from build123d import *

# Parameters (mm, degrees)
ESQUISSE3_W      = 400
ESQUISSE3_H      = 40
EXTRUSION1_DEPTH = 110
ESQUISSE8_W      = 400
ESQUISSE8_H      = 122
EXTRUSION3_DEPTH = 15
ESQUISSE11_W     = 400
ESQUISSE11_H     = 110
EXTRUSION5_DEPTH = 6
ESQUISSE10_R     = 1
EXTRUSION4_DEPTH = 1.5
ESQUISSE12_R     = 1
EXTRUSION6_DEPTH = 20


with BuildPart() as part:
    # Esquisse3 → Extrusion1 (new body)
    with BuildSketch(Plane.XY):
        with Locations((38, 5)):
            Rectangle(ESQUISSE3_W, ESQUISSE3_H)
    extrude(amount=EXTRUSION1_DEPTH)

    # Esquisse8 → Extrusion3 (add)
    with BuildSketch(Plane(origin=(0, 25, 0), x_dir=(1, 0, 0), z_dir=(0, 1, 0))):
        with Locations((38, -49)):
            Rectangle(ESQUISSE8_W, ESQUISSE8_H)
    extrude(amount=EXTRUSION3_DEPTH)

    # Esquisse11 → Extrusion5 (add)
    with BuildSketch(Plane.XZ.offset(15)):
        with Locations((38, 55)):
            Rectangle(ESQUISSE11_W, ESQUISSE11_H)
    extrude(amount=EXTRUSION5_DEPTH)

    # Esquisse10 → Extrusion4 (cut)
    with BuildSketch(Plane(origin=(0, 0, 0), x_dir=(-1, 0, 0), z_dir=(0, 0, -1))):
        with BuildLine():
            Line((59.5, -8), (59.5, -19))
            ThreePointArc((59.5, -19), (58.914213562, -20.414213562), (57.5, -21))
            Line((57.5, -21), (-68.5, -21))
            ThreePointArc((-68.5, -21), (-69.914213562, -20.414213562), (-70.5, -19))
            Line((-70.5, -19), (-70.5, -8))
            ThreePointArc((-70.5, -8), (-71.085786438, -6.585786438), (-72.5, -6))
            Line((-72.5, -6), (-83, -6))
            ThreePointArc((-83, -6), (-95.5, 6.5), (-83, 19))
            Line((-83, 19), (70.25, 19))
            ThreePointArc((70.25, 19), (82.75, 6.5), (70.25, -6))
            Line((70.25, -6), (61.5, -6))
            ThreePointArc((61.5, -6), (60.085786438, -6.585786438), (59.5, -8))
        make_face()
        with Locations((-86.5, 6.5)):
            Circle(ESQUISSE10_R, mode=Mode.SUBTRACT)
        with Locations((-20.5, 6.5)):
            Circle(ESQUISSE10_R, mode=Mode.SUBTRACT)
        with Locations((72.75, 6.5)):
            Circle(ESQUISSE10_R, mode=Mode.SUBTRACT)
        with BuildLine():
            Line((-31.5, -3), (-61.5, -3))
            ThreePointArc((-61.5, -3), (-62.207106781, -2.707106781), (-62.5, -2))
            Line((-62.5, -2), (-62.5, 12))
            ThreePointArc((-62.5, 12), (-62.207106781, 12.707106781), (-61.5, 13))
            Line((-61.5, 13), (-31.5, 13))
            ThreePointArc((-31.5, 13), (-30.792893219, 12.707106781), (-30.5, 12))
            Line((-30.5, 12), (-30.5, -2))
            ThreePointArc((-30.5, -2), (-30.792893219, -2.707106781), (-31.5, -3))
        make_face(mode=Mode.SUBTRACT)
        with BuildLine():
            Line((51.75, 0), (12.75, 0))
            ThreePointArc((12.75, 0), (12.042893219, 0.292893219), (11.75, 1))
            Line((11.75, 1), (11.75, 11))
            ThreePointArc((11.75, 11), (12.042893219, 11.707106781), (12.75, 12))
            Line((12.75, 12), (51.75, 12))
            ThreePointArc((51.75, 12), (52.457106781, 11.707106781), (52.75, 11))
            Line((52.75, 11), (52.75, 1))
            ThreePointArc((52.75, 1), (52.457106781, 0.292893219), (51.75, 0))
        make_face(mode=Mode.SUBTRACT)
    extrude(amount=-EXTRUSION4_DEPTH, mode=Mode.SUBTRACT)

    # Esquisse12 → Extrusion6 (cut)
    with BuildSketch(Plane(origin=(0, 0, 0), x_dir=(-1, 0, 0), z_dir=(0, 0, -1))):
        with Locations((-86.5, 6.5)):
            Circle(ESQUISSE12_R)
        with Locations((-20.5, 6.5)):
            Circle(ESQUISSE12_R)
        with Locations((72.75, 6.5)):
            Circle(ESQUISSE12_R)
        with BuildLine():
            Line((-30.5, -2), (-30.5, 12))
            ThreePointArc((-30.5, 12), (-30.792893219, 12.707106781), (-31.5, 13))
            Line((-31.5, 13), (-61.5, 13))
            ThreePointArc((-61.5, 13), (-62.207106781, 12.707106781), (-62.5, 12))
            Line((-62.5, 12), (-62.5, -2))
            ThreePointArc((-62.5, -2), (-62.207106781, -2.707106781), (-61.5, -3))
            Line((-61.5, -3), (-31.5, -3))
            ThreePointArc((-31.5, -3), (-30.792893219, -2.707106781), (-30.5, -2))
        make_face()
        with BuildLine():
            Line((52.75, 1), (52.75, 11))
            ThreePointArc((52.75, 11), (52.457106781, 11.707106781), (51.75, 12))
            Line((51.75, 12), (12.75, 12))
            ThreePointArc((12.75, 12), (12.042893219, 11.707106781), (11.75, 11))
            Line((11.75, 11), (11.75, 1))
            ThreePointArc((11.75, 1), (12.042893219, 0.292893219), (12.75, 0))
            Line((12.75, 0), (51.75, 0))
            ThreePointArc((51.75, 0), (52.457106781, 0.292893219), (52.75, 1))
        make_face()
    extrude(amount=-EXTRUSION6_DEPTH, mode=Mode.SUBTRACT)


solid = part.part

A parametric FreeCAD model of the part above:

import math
import FreeCAD as App
import Part
import Sketcher
from FreeCAD import Vector

doc = App.newDocument("Part")
body = doc.addObject("PartDesign::Body", "Body")

sketch1 = body.newObject("Sketcher::SketchObject", "Sketch")
sketch1.AttachmentSupport = (doc.getObject("XY_Plane"), [""])
sketch1.MapMode = "FlatFace"
sketch1.addGeometry([
    Part.LineSegment(Vector(-162, 25, 0), Vector(-162, -15, 0)),
    Part.LineSegment(Vector(-162, -15, 0), Vector(238, -15, 0)),
    Part.LineSegment(Vector(238, -15, 0), Vector(238, 25, 0)),
    Part.LineSegment(Vector(238, 25, 0), Vector(-162, 25, 0)),
], False)
sketch1.addConstraint([
    Sketcher.Constraint("Coincident", 0, 2, 1, 1),
    Sketcher.Constraint("Coincident", 1, 2, 2, 1),
    Sketcher.Constraint("Coincident", 2, 2, 3, 1),
    Sketcher.Constraint("Coincident", 3, 2, 0, 1),
    Sketcher.Constraint("Vertical", 0),
    Sketcher.Constraint("Horizontal", 1),
    Sketcher.Constraint("Vertical", 2),
    Sketcher.Constraint("Horizontal", 3),
    Sketcher.Constraint("DistanceX", 1, 1, 1, 2, 400.0),
    Sketcher.Constraint("DistanceY", 0, 2, 0, 1, 40.0),
    Sketcher.Constraint("DistanceX", 0, 2, -1, 1, 162.0),
    Sketcher.Constraint("DistanceY", 0, 2, -1, 1, 15.0),
])
pad1 = body.newObject("PartDesign::Pad", "Pad")
pad1.Profile = sketch1
pad1.Length = 110

sketch2 = body.newObject("Sketcher::SketchObject", "Sketch001")
sketch2.AttachmentSupport = (doc.getObject("XZ_Plane"), [""])
sketch2.MapMode = "FlatFace"
sketch2.AttachmentOffset = App.Placement(Vector(0, 0, -25), App.Rotation())
sketch2.addGeometry([
    Part.LineSegment(Vector(-162, -12, 0), Vector(-162, 110, 0)),
    Part.LineSegment(Vector(-162, 110, 0), Vector(238, 110, 0)),
    Part.LineSegment(Vector(238, 110, 0), Vector(238, -12, 0)),
    Part.LineSegment(Vector(238, -12, 0), Vector(-162, -12, 0)),
], False)
sketch2.addConstraint([
    Sketcher.Constraint("Coincident", 0, 2, 1, 1),
    Sketcher.Constraint("Coincident", 1, 2, 2, 1),
    Sketcher.Constraint("Coincident", 2, 2, 3, 1),
    Sketcher.Constraint("Coincident", 3, 2, 0, 1),
    Sketcher.Constraint("Vertical", 0),
    Sketcher.Constraint("Horizontal", 1),
    Sketcher.Constraint("Vertical", 2),
    Sketcher.Constraint("Horizontal", 3),
    Sketcher.Constraint("DistanceX", 1, 1, 1, 2, 400.0),
    Sketcher.Constraint("DistanceY", 0, 1, 0, 2, 122.0),
    Sketcher.Constraint("DistanceX", 0, 2, -1, 1, 162.0),
    Sketcher.Constraint("DistanceY", -1, 1, 0, 2, 110.0),
])
pad2 = body.newObject("PartDesign::Pad", "Pad001")
pad2.Profile = sketch2
pad2.Length = 15
pad2.Reversed = True

sketch3 = body.newObject("Sketcher::SketchObject", "Sketch002")
sketch3.AttachmentSupport = (doc.getObject("XZ_Plane"), [""])
sketch3.MapMode = "FlatFace"
sketch3.AttachmentOffset = App.Placement(Vector(0, 0, 15), App.Rotation())
sketch3.addGeometry([
    Part.LineSegment(Vector(-162, 110, 0), Vector(-162, 0, 0)),
    Part.LineSegment(Vector(-162, 0, 0), Vector(238, 0, 0)),
    Part.LineSegment(Vector(238, 0, 0), Vector(238, 110, 0)),
    Part.LineSegment(Vector(238, 110, 0), Vector(-162, 110, 0)),
], False)
sketch3.addConstraint([
    Sketcher.Constraint("Coincident", 0, 2, 1, 1),
    Sketcher.Constraint("Coincident", 1, 2, 2, 1),
    Sketcher.Constraint("Coincident", 2, 2, 3, 1),
    Sketcher.Constraint("Coincident", 3, 2, 0, 1),
    Sketcher.Constraint("Vertical", 0),
    Sketcher.Constraint("Horizontal", 1),
    Sketcher.Constraint("Vertical", 2),
    Sketcher.Constraint("Horizontal", 3),
    Sketcher.Constraint("PointOnObject", 0, 2, -1),
    Sketcher.Constraint("DistanceX", 1, 1, 1, 2, 400.0),
    Sketcher.Constraint("DistanceY", 0, 2, 0, 1, 110.0),
    Sketcher.Constraint("DistanceX", 0, 2, -1, 1, 162.0),
])
pad3 = body.newObject("PartDesign::Pad", "Pad002")
pad3.Profile = sketch3
pad3.Length = 6

sketch4 = body.newObject("Sketcher::SketchObject", "Sketch003")
sketch4.AttachmentSupport = (doc.getObject("XY_Plane"), [""])
sketch4.MapMode = "FlatFace"
sketch4.addGeometry([
    Part.LineSegment(Vector(-59.5, -19, 0), Vector(-59.5, -8, 0)),
    Part.ArcOfCircle(Part.Circle(Vector(-61.5, -8, 0), Vector(0, 0, 1), 2), math.radians(0), math.radians(90)),
    Part.LineSegment(Vector(-61.5, -6, 0), Vector(-70.2, -6, 0)),
    Part.ArcOfCircle(Part.Circle(Vector(-70.2, 6.5, 0), Vector(0, 0, 1), 12.5), math.radians(90), math.radians(270)),
    Part.LineSegment(Vector(-70.2, 19, 0), Vector(83, 19, 0)),
    Part.ArcOfCircle(Part.Circle(Vector(83, 6.5, 0), Vector(0, 0, 1), 12.5), math.radians(-90), math.radians(90)),
    Part.LineSegment(Vector(83, -6, 0), Vector(72.5, -6, 0)),
    Part.ArcOfCircle(Part.Circle(Vector(72.5, -8, 0), Vector(0, 0, 1), 2), math.radians(90), math.radians(180)),
    Part.LineSegment(Vector(70.5, -8, 0), Vector(70.5, -19, 0)),
    Part.ArcOfCircle(Part.Circle(Vector(68.5, -19, 0), Vector(0, 0, 1), 2), math.radians(-90), math.radians(0)),
    Part.LineSegment(Vector(68.5, -21, 0), Vector(-57.5, -21, 0)),
    Part.ArcOfCircle(Part.Circle(Vector(-57.5, -19, 0), Vector(0, 0, 1), 2), math.radians(-180), math.radians(-90)),
    Part.Circle(Vector(-72.8, 6.5, 0), Vector(0, 0, 1), 1),
    Part.LineSegment(Vector(-51.8, 0, 0), Vector(-12.8, 0, 0)),
    Part.ArcOfCircle(Part.Circle(Vector(-12.8, 1, 0), Vector(0, 0, 1), 1), math.radians(-90), math.radians(0)),
    Part.LineSegment(Vector(-11.8, 1, 0), Vector(-11.8, 11, 0)),
    Part.ArcOfCircle(Part.Circle(Vector(-12.8, 11, 0), Vector(0, 0, 1), 1), math.radians(0), math.radians(90)),
    Part.LineSegment(Vector(-12.8, 12, 0), Vector(-51.8, 12, 0)),
    Part.ArcOfCircle(Part.Circle(Vector(-51.7, 11, 0), Vector(0, 0, 1), 1), math.radians(90), math.radians(180)),
    Part.LineSegment(Vector(-52.8, 11, 0), Vector(-52.8, 1, 0)),
    Part.ArcOfCircle(Part.Circle(Vector(-51.7, 1, 0), Vector(0, 0, 1), 1), math.radians(-180), math.radians(-90)),
    Part.Circle(Vector(20.5, 6.5, 0), Vector(0, 0, 1), 1),
    Part.LineSegment(Vector(31.5, -3, 0), Vector(61.5, -3, 0)),
    Part.ArcOfCircle(Part.Circle(Vector(61.5, -2, 0), Vector(0, 0, 1), 1), math.radians(-90), math.radians(0)),
    Part.LineSegment(Vector(62.5, -2, 0), Vector(62.5, 12, 0)),
    Part.ArcOfCircle(Part.Circle(Vector(61.5, 12, 0), Vector(0, 0, 1), 1), math.radians(0), math.radians(90)),
    Part.LineSegment(Vector(61.5, 13, 0), Vector(31.5, 13, 0)),
    Part.ArcOfCircle(Part.Circle(Vector(31.5, 12, 0), Vector(0, 0, 1), 1), math.radians(90), math.radians(180)),
    Part.LineSegment(Vector(30.5, 12, 0), Vector(30.5, -2, 0)),
    Part.ArcOfCircle(Part.Circle(Vector(31.5, -2, 0), Vector(0, 0, 1), 1), math.radians(-180), math.radians(-90)),
    Part.Circle(Vector(86.5, 6.5, 0), Vector(0, 0, 1), 1),
], False)
sketch4.addConstraint([
    Sketcher.Constraint("Tangent", 0, 2, 1, 1),
    Sketcher.Constraint("Tangent", 1, 2, 2, 1),
    Sketcher.Constraint("Tangent", 2, 2, 3, 2),
    Sketcher.Constraint("Tangent", 3, 1, 4, 1),
    Sketcher.Constraint("Tangent", 4, 2, 5, 2),
    Sketcher.Constraint("Tangent", 5, 1, 6, 1),
    Sketcher.Constraint("Tangent", 6, 2, 7, 1),
    Sketcher.Constraint("Tangent", 7, 2, 8, 1),
    Sketcher.Constraint("Tangent", 8, 2, 9, 2),
    Sketcher.Constraint("Tangent", 9, 1, 10, 1),
    Sketcher.Constraint("Tangent", 10, 2, 11, 2),
    Sketcher.Constraint("Tangent", 11, 1, 0, 1),
    Sketcher.Constraint("Tangent", 13, 2, 14, 1),
    Sketcher.Constraint("Tangent", 14, 2, 15, 1),
    Sketcher.Constraint("Tangent", 15, 2, 16, 1),
    Sketcher.Constraint("Tangent", 16, 2, 17, 1),
    Sketcher.Constraint("Tangent", 17, 2, 18, 1),
    Sketcher.Constraint("Tangent", 18, 2, 19, 1),
    Sketcher.Constraint("Tangent", 19, 2, 20, 1),
    Sketcher.Constraint("Tangent", 20, 2, 13, 1),
    Sketcher.Constraint("Tangent", 22, 2, 23, 1),
    Sketcher.Constraint("Tangent", 23, 2, 24, 1),
    Sketcher.Constraint("Tangent", 24, 2, 25, 1),
    Sketcher.Constraint("Tangent", 25, 2, 26, 1),
    Sketcher.Constraint("Tangent", 26, 2, 27, 1),
    Sketcher.Constraint("Tangent", 27, 2, 28, 1),
    Sketcher.Constraint("Tangent", 28, 2, 29, 1),
    Sketcher.Constraint("Tangent", 29, 2, 22, 1),
    Sketcher.Constraint("Vertical", 0),
    Sketcher.Constraint("Horizontal", 2),
    Sketcher.Constraint("Horizontal", 4),
    Sketcher.Constraint("Horizontal", 6),
    Sketcher.Constraint("Vertical", 8),
    Sketcher.Constraint("Horizontal", 10),
    Sketcher.Constraint("Horizontal", 13),
    Sketcher.Constraint("Vertical", 15),
    Sketcher.Constraint("Horizontal", 17),
    Sketcher.Constraint("Vertical", 19),
    Sketcher.Constraint("Horizontal", 22),
    Sketcher.Constraint("Vertical", 24),
    Sketcher.Constraint("Horizontal", 26),
    Sketcher.Constraint("Vertical", 28),
    Sketcher.Constraint("Equal", 3, 5),
    Sketcher.Constraint("Equal", 1, 7),
    Sketcher.Constraint("Equal", 7, 9),
    Sketcher.Constraint("Equal", 9, 11),
    Sketcher.Constraint("Equal", 12, 14),
    Sketcher.Constraint("Equal", 14, 16),
    Sketcher.Constraint("Equal", 16, 18),
    Sketcher.Constraint("Equal", 18, 20),
    Sketcher.Constraint("Equal", 20, 21),
    Sketcher.Constraint("Equal", 21, 23),
    Sketcher.Constraint("Equal", 23, 25),
    Sketcher.Constraint("Equal", 25, 27),
    Sketcher.Constraint("Equal", 27, 29),
    Sketcher.Constraint("Equal", 29, 30),
    Sketcher.Constraint("PointOnObject", 13, 2, -1),
    Sketcher.Constraint("Horizontal", 5, 3, 12, 3),
    Sketcher.Constraint("Horizontal", 12, 3, 21, 3),
    Sketcher.Constraint("Horizontal", 21, 3, 30, 3),
    Sketcher.Constraint("Horizontal", 27, 3, 16, 2),
    Sketcher.Constraint("Diameter", 12, 2.0),
    Sketcher.Constraint("Radius", 1, 2.0),
    Sketcher.Constraint("Radius", 3, 12.5),
    Sketcher.Constraint("DistanceX", 10, 2, 10, 1, 126.0),
    Sketcher.Constraint("DistanceX", 13, 1, 13, 2, 39.0),
    Sketcher.Constraint("DistanceX", 22, 1, 22, 2, 30.0),
    Sketcher.Constraint("DistanceY", 0, 1, 0, 2, 11.0),
    Sketcher.Constraint("DistanceY", 15, 1, 15, 2, 10.0),
    Sketcher.Constraint("DistanceY", 24, 1, 24, 2, 14.0),
    Sketcher.Constraint("DistanceX", 6, 2, 6, 1, 10.5),
    Sketcher.Constraint("DistanceY", 1, 3, -1, 1, 8.0),
    Sketcher.Constraint("DistanceX", -1, 1, 5, 3, 83.0),
    Sketcher.Constraint("DistanceX", 12, 3, 14, 3, 60.0),
    Sketcher.Constraint("DistanceX", 21, 3, 7, 3, 52.0),
    Sketcher.Constraint("DistanceX", 23, 3, 7, 3, 11.0),
    Sketcher.Constraint("DistanceX", 7, 3, 30, 3, 14.0),
    Sketcher.Constraint("DistanceX", 2, 2, 2, 1, 8.75),
    Sketcher.Constraint("DistanceX", 12, 3, 3, 3, 2.5),
])
pocket1 = body.newObject("PartDesign::Pocket", "Pocket")
pocket1.Profile = sketch4
pocket1.Length = 1.5
pocket1.Reversed = True

sketch5 = body.newObject("Sketcher::SketchObject", "Sketch004")
sketch5.AttachmentSupport = (doc.getObject("XY_Plane"), [""])
sketch5.MapMode = "FlatFace"
sketch5.addGeometry([
    Part.Circle(Vector(86.5, 6.5, 0), Vector(0, 0, 1), 1),
    Part.Circle(Vector(20.5, 6.5, 0), Vector(0, 0, 1), 1),
    Part.Circle(Vector(-72.8, 6.5, 0), Vector(0, 0, 1), 1),
    Part.LineSegment(Vector(30.5, -2, 0), Vector(30.5, 12, 0)),
    Part.ArcOfCircle(Part.Circle(Vector(31.5, 12, 0), Vector(0, 0, 1), 1), math.radians(90), math.radians(180)),
    Part.LineSegment(Vector(31.5, 13, 0), Vector(61.5, 13, 0)),
    Part.ArcOfCircle(Part.Circle(Vector(61.5, 12, 0), Vector(0, 0, 1), 1), math.radians(0), math.radians(90)),
    Part.LineSegment(Vector(62.5, 12, 0), Vector(62.5, -2, 0)),
    Part.ArcOfCircle(Part.Circle(Vector(61.5, -2, 0), Vector(0, 0, 1), 1), math.radians(-90), math.radians(0)),
    Part.LineSegment(Vector(61.5, -3, 0), Vector(31.5, -3, 0)),
    Part.ArcOfCircle(Part.Circle(Vector(31.5, -2, 0), Vector(0, 0, 1), 1), math.radians(-180), math.radians(-90)),
    Part.LineSegment(Vector(-52.8, 1, 0), Vector(-52.8, 11, 0)),
    Part.ArcOfCircle(Part.Circle(Vector(-51.7, 11, 0), Vector(0, 0, 1), 1), math.radians(90), math.radians(180)),
    Part.LineSegment(Vector(-51.8, 12, 0), Vector(-12.8, 12, 0)),
    Part.ArcOfCircle(Part.Circle(Vector(-12.8, 11, 0), Vector(0, 0, 1), 1), math.radians(0), math.radians(90)),
    Part.LineSegment(Vector(-11.8, 11, 0), Vector(-11.8, 1, 0)),
    Part.ArcOfCircle(Part.Circle(Vector(-12.8, 1, 0), Vector(0, 0, 1), 1), math.radians(-90), math.radians(0)),
    Part.LineSegment(Vector(-12.8, 0, 0), Vector(-51.8, 0, 0)),
    Part.ArcOfCircle(Part.Circle(Vector(-51.7, 1, 0), Vector(0, 0, 1), 1), math.radians(-180), math.radians(-90)),
], False)
sketch5.addConstraint([
    Sketcher.Constraint("Tangent", 3, 2, 4, 2),
    Sketcher.Constraint("Tangent", 4, 1, 5, 1),
    Sketcher.Constraint("Tangent", 5, 2, 6, 2),
    Sketcher.Constraint("Tangent", 6, 1, 7, 1),
    Sketcher.Constraint("Tangent", 7, 2, 8, 2),
    Sketcher.Constraint("Tangent", 8, 1, 9, 1),
    Sketcher.Constraint("Tangent", 9, 2, 10, 2),
    Sketcher.Constraint("Tangent", 10, 1, 3, 1),
    Sketcher.Constraint("Tangent", 11, 2, 12, 2),
    Sketcher.Constraint("Tangent", 12, 1, 13, 1),
    Sketcher.Constraint("Tangent", 13, 2, 14, 2),
    Sketcher.Constraint("Tangent", 14, 1, 15, 1),
    Sketcher.Constraint("Tangent", 15, 2, 16, 2),
    Sketcher.Constraint("Tangent", 16, 1, 17, 1),
    Sketcher.Constraint("Tangent", 17, 2, 18, 2),
    Sketcher.Constraint("Tangent", 18, 1, 11, 1),
    Sketcher.Constraint("Vertical", 3),
    Sketcher.Constraint("Horizontal", 5),
    Sketcher.Constraint("Vertical", 7),
    Sketcher.Constraint("Horizontal", 9),
    Sketcher.Constraint("Vertical", 11),
    Sketcher.Constraint("Horizontal", 13),
    Sketcher.Constraint("Vertical", 15),
    Sketcher.Constraint("Horizontal", 17),
    Sketcher.Constraint("Equal", 0, 1),
    Sketcher.Constraint("Equal", 1, 2),
    Sketcher.Constraint("Equal", 2, 4),
    Sketcher.Constraint("Equal", 4, 6),
    Sketcher.Constraint("Equal", 6, 8),
    Sketcher.Constraint("Equal", 8, 10),
    Sketcher.Constraint("Equal", 10, 12),
    Sketcher.Constraint("Equal", 12, 14),
    Sketcher.Constraint("Equal", 14, 16),
    Sketcher.Constraint("Equal", 16, 18),
    Sketcher.Constraint("PointOnObject", 16, 1, -1),
    Sketcher.Constraint("Horizontal", 0, 3, 1, 3),
    Sketcher.Constraint("Horizontal", 1, 3, 2, 3),
    Sketcher.Constraint("Horizontal", 6, 1, 12, 1),
    Sketcher.Constraint("Diameter", 0, 2.0),
    Sketcher.Constraint("DistanceX", 5, 1, 5, 2, 30.0),
    Sketcher.Constraint("DistanceX", 13, 1, 13, 2, 39.0),
    Sketcher.Constraint("DistanceY", 3, 1, 3, 2, 14.0),
    Sketcher.Constraint("DistanceY", 11, 1, 11, 2, 10.0),
    Sketcher.Constraint("DistanceX", 1, 3, 0, 3, 66.0),
    Sketcher.Constraint("DistanceX", 1, 3, 4, 3, 11.0),
    Sketcher.Constraint("DistanceX", 2, 3, 12, 3, 21.0),
    Sketcher.Constraint("DistanceX", -1, 1, 0, 3, 86.5),
    Sketcher.Constraint("DistanceY", -1, 1, 0, 3, 6.5),
    Sketcher.Constraint("DistanceX", 2, 3, -1, 1, 72.75),
])
pocket2 = body.newObject("PartDesign::Pocket", "Pocket001")
pocket2.Profile = sketch5
pocket2.Length = 20
pocket2.Reversed = True

doc.recompute()
